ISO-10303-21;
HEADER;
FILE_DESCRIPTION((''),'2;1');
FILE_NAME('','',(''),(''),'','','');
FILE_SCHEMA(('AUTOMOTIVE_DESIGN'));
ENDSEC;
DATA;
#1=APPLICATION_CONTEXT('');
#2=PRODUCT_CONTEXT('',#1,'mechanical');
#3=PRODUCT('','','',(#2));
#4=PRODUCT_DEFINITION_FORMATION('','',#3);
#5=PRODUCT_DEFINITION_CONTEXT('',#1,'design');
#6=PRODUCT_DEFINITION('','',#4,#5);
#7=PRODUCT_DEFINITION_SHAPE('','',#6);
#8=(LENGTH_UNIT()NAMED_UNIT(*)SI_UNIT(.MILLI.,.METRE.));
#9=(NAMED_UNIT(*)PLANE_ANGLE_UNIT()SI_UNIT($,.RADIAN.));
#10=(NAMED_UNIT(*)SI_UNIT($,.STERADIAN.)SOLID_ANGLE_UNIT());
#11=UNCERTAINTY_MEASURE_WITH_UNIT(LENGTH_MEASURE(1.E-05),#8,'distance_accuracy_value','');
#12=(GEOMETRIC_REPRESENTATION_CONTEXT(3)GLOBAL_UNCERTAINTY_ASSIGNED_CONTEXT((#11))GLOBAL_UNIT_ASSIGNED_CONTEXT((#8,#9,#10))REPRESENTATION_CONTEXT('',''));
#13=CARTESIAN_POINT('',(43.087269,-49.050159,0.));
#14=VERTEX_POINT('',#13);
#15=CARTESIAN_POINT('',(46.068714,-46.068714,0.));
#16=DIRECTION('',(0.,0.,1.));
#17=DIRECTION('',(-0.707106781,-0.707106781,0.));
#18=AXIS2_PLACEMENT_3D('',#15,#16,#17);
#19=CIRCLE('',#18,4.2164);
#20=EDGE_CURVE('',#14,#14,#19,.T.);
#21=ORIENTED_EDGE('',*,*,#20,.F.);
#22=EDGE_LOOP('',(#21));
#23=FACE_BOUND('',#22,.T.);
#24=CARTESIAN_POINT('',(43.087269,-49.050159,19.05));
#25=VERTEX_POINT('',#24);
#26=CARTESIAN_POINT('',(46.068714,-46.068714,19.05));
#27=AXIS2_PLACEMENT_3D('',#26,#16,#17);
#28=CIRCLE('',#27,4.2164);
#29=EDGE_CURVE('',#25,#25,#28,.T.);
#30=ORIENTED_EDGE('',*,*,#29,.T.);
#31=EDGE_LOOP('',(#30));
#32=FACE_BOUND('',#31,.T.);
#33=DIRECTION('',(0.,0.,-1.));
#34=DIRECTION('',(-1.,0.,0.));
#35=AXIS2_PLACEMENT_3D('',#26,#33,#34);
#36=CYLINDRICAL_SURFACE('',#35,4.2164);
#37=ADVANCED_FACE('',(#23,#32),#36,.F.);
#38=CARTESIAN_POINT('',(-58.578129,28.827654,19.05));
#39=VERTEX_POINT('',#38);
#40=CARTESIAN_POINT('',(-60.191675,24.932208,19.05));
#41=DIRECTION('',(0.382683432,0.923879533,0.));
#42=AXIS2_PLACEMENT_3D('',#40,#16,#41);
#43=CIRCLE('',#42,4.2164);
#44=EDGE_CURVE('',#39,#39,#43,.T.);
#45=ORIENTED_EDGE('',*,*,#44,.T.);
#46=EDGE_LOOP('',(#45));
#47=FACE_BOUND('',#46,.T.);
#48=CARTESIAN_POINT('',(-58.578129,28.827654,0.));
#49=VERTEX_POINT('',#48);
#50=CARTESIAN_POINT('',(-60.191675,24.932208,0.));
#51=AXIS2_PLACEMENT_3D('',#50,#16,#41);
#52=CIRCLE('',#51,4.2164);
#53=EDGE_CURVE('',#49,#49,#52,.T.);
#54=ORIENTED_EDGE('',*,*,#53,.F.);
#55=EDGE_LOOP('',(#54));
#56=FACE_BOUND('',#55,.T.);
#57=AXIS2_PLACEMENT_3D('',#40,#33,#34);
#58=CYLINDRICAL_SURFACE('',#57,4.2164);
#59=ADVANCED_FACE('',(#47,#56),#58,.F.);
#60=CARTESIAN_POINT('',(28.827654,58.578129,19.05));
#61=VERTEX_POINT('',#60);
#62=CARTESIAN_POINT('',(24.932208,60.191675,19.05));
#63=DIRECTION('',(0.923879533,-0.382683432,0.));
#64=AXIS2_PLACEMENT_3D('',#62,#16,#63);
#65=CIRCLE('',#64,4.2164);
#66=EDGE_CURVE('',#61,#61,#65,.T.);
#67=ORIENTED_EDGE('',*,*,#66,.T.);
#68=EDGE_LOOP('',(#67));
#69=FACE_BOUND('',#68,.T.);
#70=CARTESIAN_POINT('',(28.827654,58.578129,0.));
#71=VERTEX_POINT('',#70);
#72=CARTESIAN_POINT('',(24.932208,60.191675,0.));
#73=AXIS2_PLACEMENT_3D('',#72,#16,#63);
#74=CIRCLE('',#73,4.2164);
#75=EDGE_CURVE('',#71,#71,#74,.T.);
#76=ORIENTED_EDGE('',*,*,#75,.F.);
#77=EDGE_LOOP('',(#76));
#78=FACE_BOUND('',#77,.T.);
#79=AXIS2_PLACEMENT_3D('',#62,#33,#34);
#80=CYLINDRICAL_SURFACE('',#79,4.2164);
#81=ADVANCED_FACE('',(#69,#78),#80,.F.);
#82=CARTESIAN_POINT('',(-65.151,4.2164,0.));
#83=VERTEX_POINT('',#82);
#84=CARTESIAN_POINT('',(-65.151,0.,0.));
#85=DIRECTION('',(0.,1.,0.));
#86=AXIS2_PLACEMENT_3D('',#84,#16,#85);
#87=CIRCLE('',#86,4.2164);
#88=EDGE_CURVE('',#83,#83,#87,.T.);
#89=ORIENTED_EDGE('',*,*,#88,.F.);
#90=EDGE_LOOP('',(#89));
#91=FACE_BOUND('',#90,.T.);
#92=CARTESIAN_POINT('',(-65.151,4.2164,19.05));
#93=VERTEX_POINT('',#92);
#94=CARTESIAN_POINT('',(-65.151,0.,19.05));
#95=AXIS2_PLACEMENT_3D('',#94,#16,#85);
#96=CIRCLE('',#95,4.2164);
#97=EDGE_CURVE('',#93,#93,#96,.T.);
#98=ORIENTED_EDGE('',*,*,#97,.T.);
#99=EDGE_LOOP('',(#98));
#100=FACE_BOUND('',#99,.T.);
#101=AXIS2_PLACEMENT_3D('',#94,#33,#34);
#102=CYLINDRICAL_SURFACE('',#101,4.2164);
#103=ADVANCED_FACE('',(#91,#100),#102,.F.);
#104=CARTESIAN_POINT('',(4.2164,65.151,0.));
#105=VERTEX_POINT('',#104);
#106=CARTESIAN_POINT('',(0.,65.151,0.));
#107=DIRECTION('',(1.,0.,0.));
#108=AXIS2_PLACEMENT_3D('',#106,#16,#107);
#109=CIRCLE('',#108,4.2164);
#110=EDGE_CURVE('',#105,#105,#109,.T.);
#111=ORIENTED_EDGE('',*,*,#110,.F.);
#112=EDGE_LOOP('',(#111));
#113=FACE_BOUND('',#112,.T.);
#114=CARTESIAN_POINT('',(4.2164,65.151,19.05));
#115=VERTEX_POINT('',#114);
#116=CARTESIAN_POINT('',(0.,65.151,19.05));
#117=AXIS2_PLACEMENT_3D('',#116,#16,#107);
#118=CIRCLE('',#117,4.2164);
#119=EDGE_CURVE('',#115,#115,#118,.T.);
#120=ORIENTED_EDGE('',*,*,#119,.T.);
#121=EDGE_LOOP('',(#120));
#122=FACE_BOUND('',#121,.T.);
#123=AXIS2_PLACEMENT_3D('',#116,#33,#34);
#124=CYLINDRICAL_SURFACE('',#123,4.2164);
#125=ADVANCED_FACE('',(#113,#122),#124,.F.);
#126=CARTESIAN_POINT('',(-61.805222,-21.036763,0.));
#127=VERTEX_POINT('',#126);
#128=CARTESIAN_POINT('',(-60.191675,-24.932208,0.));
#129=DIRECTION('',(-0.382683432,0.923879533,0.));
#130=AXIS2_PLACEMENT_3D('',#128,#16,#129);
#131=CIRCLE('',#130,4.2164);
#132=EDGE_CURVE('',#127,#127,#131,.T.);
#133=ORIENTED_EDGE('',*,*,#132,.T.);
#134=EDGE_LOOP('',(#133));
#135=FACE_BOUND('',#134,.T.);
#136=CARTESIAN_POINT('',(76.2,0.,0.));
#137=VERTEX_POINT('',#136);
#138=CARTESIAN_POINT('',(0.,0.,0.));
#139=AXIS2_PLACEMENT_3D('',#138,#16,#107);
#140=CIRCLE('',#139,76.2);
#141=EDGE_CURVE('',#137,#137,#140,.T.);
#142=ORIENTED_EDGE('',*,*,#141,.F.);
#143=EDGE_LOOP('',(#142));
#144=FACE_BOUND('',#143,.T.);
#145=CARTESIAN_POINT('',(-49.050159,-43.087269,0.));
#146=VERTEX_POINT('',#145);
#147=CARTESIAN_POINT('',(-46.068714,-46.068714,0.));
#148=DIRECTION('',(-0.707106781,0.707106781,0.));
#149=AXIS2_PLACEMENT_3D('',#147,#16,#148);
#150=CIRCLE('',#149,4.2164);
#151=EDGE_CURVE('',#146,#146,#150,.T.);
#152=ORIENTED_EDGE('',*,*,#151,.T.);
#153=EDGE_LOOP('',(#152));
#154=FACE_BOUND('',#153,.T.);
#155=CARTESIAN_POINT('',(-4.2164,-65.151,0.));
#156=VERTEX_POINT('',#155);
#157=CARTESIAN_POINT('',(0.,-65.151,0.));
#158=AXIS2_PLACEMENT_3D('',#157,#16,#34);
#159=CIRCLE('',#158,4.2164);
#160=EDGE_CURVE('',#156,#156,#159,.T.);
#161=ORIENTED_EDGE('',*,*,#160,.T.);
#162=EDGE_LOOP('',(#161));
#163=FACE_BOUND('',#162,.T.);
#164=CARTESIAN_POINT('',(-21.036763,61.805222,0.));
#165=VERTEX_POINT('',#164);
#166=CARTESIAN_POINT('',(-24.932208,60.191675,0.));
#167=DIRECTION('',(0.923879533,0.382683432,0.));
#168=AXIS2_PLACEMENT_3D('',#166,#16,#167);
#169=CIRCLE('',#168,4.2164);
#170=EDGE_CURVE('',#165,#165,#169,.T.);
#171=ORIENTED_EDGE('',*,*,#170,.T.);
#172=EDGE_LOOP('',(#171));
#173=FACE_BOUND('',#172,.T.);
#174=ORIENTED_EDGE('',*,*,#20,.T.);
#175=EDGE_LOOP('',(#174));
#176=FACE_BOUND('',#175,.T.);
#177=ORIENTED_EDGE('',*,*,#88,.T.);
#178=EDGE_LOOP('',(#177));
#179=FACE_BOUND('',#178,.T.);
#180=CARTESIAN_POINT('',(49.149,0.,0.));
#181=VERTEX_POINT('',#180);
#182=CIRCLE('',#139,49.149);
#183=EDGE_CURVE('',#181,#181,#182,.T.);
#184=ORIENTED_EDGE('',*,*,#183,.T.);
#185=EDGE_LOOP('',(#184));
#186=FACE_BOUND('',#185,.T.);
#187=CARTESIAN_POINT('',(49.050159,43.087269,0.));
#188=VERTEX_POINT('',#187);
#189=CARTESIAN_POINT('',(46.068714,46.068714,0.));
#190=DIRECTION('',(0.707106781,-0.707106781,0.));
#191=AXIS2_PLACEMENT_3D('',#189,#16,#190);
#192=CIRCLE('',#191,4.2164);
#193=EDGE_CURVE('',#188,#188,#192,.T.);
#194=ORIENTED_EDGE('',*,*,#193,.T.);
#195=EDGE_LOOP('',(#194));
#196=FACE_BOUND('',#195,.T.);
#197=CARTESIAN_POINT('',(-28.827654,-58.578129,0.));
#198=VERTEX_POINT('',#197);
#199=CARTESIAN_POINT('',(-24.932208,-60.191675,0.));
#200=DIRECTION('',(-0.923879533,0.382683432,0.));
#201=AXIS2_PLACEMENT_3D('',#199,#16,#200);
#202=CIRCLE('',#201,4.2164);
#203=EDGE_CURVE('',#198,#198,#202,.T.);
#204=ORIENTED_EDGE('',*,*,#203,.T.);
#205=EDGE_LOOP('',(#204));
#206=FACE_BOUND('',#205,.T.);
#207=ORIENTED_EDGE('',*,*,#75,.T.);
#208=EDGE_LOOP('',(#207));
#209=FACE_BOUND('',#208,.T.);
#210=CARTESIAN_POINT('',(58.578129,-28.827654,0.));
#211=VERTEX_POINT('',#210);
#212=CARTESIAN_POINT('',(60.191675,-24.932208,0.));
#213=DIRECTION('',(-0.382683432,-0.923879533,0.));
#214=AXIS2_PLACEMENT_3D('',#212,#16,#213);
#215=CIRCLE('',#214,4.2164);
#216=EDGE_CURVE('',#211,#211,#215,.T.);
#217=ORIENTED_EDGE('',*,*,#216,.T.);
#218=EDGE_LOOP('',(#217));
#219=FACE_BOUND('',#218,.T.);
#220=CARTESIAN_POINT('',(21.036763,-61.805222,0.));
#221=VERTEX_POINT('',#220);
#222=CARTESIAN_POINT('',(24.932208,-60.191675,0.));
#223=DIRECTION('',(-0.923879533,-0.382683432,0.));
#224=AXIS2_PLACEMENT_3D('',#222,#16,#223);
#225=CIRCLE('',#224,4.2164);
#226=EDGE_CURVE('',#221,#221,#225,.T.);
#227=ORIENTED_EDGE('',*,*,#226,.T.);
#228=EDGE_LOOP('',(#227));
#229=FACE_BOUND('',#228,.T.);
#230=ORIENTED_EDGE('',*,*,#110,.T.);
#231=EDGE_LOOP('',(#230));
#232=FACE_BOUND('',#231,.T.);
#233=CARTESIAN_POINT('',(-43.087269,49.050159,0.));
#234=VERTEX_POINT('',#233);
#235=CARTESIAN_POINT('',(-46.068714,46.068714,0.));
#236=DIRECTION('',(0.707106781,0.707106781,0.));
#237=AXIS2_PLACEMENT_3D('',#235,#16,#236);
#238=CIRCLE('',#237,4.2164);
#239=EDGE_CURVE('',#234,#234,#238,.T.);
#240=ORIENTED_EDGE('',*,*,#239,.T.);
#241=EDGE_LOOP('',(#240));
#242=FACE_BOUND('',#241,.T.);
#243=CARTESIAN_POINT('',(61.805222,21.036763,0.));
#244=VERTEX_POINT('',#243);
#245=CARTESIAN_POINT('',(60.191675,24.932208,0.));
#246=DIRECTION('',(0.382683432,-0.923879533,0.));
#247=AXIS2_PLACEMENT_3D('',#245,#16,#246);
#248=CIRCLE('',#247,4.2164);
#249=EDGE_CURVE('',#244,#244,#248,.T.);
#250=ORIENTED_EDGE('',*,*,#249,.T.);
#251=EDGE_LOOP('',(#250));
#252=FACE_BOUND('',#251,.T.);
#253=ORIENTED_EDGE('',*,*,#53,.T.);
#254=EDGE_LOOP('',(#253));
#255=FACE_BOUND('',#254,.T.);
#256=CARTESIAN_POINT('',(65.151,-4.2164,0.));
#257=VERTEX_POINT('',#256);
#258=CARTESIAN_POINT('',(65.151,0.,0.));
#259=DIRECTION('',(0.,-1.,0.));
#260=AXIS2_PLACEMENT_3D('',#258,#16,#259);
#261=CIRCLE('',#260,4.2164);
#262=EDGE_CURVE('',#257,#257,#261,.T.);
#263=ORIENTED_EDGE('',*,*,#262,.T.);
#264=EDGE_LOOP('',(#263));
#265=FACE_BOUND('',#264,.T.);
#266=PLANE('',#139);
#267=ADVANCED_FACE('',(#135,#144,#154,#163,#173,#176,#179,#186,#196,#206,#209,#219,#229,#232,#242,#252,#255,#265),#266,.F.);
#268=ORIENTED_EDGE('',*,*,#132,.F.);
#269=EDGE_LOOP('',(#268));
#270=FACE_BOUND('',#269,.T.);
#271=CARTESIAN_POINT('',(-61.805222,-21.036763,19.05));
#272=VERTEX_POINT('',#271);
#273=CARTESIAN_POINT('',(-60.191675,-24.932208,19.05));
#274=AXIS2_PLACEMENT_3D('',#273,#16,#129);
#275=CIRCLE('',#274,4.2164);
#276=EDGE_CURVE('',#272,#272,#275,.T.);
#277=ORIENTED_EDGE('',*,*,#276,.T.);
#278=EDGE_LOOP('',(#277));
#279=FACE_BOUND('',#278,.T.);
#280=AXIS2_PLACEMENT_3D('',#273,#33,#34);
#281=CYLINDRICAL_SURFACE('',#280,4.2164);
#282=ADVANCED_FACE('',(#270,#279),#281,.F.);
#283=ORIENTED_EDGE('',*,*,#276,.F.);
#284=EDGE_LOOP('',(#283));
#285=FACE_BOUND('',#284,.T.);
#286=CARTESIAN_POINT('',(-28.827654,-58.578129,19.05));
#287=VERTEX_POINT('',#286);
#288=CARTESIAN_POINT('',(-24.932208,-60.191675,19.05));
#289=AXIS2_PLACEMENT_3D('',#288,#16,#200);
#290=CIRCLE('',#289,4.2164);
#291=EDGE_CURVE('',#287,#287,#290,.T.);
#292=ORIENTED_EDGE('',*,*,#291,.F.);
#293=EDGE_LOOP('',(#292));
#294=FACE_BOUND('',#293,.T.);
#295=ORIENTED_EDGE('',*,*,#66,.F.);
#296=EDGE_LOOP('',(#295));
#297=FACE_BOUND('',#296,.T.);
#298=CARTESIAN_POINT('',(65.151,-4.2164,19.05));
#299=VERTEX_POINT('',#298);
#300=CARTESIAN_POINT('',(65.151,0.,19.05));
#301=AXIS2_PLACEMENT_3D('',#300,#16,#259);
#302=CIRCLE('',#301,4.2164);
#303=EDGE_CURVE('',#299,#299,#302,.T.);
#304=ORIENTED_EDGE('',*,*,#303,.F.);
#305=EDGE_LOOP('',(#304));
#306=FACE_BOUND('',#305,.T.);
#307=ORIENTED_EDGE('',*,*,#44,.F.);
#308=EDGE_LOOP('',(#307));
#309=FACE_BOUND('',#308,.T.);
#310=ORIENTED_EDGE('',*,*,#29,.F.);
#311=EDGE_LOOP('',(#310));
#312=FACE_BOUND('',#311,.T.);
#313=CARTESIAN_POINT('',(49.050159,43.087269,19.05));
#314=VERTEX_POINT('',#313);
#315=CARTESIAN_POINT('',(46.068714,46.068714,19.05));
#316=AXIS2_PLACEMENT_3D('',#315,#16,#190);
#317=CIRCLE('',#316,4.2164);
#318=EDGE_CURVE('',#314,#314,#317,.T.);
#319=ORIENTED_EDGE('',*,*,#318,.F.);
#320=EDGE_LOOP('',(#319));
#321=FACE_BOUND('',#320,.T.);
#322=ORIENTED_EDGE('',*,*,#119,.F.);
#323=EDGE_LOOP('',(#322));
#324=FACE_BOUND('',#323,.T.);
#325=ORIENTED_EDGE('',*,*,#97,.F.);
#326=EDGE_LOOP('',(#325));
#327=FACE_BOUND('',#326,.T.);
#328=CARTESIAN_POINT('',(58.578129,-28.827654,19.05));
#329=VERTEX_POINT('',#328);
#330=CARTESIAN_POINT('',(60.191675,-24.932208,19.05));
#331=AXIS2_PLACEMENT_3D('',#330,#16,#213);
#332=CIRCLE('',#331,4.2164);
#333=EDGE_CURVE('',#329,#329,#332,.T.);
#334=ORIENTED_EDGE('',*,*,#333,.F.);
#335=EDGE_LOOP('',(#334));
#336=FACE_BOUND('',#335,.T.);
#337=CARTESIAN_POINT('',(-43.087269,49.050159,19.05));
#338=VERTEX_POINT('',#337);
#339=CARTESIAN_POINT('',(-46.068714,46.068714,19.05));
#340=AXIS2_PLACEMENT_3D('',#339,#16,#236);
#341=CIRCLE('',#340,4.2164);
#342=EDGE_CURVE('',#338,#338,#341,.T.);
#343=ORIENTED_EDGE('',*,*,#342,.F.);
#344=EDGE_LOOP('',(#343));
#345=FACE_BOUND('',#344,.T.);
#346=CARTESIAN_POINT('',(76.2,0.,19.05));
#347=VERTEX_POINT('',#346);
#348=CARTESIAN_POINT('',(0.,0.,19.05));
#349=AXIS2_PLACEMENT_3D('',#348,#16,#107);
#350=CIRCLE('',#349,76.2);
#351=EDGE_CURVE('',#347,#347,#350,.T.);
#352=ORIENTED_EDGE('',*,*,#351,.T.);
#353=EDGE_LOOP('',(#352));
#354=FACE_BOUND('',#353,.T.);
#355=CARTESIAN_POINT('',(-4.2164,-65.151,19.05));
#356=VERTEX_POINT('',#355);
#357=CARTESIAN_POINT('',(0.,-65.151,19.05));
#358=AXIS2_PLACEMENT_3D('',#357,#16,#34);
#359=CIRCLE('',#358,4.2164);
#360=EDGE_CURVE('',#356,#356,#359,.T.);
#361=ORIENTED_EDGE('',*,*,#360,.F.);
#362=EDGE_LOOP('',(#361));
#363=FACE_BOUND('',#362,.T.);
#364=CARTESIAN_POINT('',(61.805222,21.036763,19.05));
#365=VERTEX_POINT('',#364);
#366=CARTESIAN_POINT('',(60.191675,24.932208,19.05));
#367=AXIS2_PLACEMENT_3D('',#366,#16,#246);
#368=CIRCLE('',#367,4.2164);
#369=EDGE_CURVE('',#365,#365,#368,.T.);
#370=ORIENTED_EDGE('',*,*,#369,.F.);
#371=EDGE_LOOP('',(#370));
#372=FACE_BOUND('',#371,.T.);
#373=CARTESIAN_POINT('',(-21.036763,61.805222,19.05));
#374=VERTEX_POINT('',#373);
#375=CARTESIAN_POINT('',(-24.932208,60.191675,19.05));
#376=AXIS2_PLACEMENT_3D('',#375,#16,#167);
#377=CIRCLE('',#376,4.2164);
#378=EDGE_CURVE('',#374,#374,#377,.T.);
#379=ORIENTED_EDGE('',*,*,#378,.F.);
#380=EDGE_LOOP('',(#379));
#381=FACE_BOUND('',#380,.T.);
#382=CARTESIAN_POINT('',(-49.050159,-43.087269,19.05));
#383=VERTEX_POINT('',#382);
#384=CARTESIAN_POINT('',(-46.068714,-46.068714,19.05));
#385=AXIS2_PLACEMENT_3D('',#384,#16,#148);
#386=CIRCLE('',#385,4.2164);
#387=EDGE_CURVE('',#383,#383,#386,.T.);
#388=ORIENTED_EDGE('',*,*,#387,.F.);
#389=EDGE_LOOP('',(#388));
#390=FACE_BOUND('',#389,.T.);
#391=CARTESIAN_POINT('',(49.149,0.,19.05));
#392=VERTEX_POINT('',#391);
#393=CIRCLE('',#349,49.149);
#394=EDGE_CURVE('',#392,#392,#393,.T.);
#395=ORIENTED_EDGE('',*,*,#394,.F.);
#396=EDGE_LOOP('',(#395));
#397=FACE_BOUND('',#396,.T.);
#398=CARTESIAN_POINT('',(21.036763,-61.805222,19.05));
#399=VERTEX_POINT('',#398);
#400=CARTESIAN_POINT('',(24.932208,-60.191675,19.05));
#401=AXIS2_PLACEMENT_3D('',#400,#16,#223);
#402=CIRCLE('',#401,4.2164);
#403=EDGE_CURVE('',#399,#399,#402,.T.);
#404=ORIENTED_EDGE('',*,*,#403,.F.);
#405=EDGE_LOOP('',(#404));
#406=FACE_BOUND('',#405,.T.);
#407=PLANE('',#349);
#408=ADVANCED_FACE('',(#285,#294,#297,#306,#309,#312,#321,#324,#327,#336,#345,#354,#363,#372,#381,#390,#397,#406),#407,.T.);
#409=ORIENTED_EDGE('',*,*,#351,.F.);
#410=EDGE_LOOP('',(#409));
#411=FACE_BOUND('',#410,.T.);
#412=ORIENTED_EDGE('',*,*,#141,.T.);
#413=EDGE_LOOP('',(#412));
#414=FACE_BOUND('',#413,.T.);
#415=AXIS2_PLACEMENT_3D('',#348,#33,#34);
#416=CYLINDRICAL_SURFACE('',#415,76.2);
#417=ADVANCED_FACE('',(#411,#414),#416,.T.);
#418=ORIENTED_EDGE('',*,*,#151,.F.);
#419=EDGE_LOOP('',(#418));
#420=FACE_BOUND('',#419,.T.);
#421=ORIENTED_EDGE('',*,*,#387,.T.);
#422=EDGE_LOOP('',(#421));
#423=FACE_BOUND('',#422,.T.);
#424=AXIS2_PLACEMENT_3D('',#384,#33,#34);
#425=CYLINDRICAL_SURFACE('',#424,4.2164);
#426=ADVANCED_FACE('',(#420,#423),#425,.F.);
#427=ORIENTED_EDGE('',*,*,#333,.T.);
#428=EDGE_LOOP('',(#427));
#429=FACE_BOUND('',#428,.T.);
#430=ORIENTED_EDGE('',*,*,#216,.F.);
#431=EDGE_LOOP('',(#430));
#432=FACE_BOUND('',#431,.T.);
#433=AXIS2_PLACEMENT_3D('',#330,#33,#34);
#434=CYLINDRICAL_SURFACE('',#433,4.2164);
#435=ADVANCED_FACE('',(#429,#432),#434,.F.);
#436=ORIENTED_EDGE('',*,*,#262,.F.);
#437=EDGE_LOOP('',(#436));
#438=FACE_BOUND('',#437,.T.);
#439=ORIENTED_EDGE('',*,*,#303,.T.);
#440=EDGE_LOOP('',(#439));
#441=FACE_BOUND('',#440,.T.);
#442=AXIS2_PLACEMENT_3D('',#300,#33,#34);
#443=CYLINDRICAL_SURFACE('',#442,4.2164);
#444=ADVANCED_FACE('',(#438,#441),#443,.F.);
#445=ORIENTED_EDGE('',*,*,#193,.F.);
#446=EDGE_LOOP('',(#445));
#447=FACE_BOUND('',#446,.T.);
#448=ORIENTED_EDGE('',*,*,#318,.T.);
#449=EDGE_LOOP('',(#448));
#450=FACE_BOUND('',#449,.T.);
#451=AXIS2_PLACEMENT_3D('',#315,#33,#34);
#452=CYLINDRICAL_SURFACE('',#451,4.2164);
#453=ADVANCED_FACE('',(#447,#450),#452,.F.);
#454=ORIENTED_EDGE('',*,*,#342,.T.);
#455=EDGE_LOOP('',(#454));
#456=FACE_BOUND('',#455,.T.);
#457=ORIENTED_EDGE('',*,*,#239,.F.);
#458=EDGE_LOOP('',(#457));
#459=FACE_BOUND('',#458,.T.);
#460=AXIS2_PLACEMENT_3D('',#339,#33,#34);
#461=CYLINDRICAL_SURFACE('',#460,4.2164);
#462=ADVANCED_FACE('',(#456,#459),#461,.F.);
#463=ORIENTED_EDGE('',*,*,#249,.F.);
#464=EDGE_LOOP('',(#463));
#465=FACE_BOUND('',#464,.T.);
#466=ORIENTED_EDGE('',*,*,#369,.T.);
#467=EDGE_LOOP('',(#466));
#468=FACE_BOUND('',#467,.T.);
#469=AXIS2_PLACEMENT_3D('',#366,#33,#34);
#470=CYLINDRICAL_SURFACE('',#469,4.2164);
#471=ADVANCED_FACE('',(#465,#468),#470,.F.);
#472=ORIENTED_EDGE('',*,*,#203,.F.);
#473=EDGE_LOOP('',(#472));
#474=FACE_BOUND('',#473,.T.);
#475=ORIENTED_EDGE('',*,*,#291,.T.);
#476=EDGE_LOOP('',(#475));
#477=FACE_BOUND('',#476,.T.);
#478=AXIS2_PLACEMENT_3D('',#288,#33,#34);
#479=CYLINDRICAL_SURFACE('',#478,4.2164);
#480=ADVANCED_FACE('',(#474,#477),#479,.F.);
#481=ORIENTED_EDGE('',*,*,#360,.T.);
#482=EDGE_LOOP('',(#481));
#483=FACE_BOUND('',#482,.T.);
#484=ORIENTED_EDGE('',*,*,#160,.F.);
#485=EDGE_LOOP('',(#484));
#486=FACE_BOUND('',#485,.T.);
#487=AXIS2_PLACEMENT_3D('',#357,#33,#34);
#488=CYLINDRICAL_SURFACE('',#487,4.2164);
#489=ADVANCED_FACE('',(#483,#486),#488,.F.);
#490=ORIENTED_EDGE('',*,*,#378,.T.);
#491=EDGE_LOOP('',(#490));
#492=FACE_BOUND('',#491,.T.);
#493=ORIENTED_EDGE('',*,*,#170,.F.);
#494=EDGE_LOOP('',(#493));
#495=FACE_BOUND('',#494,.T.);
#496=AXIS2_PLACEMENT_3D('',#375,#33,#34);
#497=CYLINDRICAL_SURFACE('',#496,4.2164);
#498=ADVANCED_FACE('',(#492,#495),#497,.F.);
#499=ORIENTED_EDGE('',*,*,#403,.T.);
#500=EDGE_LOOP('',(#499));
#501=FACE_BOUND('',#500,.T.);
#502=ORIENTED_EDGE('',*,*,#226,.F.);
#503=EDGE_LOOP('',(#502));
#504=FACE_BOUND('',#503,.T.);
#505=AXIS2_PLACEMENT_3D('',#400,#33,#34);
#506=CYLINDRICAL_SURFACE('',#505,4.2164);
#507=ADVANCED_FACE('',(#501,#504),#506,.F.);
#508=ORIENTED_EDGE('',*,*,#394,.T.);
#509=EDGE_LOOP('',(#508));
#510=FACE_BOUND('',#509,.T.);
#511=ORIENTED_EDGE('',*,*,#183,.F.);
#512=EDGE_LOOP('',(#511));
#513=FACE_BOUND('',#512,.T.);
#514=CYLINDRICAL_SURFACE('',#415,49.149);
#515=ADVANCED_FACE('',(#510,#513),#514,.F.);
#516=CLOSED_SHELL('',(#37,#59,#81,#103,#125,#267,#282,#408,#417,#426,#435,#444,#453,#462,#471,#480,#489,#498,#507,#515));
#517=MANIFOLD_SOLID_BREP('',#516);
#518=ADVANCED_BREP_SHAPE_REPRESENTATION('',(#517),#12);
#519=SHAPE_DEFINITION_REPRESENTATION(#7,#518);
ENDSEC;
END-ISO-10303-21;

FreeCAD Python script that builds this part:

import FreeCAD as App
import Part
import Sketcher
from FreeCAD import Vector
Q = App.Units.Quantity

doc = App.newDocument("Part")
body = doc.addObject("PartDesign::Body", "Body")

# Sketch on XY plane
sketch1 = body.newObject("Sketcher::SketchObject", "Sketch")
sketch1.AttachmentSupport = (doc.getObject("XY_Plane"), [""])
sketch1.MapMode = "FlatFace"
sketch1.addGeometry([
    Part.Circle(Vector(0, 0, 0), Vector(0, 0, 1), 76),
    Part.Circle(Vector(0, 0, 0), Vector(0, 0, 1), 49),
], False)
sketch1.addConstraint([
    Sketcher.Constraint("Coincident", 0, 3, -1, 1),
    Sketcher.Constraint("Coincident", 1, 3, -1, 1),
    Sketcher.Constraint("Diameter", 0, Q("6 in")),
    Sketcher.Constraint("Diameter", 1, Q("3.87 in")),
])
pad1 = body.newObject("PartDesign::Pad", "Pad")
pad1.Profile = sketch1
pad1.Length = Q("0.75 in")

# Sketch on XY plane
sketch2 = body.newObject("Sketcher::SketchObject", "Sketch001")
sketch2.AttachmentSupport = (doc.getObject("XY_Plane"), [""])
sketch2.MapMode = "FlatFace"
sketch2.addGeometry(Part.Circle(Vector(0, 65.2, 0), Vector(0, 0, 1), 4.2), False)
sketch2.addConstraint([
    Sketcher.Constraint("PointOnObject", 0, 3, -2),
    Sketcher.Constraint("Diameter", 0, Q("0.332 in")),
    Sketcher.Constraint("DistanceY", -1, 1, 0, 3, Q("2.565 in")),
])
pocket1 = body.newObject("PartDesign::Pocket", "Pocket")
pocket1.Profile = sketch2
pocket1.Type = "ThroughAll"
pocket1.Reversed = True
doc.recompute()

polarpattern = body.newObject("PartDesign::PolarPattern", "PolarPattern")
polarpattern.Originals = [pocket1]
polarpattern.Axis = (doc.getObject("Z_Axis"), [""])
polarpattern.Angle = 360
polarpattern.Occurrences = 16
body.Tip = polarpattern

doc.recompute()
